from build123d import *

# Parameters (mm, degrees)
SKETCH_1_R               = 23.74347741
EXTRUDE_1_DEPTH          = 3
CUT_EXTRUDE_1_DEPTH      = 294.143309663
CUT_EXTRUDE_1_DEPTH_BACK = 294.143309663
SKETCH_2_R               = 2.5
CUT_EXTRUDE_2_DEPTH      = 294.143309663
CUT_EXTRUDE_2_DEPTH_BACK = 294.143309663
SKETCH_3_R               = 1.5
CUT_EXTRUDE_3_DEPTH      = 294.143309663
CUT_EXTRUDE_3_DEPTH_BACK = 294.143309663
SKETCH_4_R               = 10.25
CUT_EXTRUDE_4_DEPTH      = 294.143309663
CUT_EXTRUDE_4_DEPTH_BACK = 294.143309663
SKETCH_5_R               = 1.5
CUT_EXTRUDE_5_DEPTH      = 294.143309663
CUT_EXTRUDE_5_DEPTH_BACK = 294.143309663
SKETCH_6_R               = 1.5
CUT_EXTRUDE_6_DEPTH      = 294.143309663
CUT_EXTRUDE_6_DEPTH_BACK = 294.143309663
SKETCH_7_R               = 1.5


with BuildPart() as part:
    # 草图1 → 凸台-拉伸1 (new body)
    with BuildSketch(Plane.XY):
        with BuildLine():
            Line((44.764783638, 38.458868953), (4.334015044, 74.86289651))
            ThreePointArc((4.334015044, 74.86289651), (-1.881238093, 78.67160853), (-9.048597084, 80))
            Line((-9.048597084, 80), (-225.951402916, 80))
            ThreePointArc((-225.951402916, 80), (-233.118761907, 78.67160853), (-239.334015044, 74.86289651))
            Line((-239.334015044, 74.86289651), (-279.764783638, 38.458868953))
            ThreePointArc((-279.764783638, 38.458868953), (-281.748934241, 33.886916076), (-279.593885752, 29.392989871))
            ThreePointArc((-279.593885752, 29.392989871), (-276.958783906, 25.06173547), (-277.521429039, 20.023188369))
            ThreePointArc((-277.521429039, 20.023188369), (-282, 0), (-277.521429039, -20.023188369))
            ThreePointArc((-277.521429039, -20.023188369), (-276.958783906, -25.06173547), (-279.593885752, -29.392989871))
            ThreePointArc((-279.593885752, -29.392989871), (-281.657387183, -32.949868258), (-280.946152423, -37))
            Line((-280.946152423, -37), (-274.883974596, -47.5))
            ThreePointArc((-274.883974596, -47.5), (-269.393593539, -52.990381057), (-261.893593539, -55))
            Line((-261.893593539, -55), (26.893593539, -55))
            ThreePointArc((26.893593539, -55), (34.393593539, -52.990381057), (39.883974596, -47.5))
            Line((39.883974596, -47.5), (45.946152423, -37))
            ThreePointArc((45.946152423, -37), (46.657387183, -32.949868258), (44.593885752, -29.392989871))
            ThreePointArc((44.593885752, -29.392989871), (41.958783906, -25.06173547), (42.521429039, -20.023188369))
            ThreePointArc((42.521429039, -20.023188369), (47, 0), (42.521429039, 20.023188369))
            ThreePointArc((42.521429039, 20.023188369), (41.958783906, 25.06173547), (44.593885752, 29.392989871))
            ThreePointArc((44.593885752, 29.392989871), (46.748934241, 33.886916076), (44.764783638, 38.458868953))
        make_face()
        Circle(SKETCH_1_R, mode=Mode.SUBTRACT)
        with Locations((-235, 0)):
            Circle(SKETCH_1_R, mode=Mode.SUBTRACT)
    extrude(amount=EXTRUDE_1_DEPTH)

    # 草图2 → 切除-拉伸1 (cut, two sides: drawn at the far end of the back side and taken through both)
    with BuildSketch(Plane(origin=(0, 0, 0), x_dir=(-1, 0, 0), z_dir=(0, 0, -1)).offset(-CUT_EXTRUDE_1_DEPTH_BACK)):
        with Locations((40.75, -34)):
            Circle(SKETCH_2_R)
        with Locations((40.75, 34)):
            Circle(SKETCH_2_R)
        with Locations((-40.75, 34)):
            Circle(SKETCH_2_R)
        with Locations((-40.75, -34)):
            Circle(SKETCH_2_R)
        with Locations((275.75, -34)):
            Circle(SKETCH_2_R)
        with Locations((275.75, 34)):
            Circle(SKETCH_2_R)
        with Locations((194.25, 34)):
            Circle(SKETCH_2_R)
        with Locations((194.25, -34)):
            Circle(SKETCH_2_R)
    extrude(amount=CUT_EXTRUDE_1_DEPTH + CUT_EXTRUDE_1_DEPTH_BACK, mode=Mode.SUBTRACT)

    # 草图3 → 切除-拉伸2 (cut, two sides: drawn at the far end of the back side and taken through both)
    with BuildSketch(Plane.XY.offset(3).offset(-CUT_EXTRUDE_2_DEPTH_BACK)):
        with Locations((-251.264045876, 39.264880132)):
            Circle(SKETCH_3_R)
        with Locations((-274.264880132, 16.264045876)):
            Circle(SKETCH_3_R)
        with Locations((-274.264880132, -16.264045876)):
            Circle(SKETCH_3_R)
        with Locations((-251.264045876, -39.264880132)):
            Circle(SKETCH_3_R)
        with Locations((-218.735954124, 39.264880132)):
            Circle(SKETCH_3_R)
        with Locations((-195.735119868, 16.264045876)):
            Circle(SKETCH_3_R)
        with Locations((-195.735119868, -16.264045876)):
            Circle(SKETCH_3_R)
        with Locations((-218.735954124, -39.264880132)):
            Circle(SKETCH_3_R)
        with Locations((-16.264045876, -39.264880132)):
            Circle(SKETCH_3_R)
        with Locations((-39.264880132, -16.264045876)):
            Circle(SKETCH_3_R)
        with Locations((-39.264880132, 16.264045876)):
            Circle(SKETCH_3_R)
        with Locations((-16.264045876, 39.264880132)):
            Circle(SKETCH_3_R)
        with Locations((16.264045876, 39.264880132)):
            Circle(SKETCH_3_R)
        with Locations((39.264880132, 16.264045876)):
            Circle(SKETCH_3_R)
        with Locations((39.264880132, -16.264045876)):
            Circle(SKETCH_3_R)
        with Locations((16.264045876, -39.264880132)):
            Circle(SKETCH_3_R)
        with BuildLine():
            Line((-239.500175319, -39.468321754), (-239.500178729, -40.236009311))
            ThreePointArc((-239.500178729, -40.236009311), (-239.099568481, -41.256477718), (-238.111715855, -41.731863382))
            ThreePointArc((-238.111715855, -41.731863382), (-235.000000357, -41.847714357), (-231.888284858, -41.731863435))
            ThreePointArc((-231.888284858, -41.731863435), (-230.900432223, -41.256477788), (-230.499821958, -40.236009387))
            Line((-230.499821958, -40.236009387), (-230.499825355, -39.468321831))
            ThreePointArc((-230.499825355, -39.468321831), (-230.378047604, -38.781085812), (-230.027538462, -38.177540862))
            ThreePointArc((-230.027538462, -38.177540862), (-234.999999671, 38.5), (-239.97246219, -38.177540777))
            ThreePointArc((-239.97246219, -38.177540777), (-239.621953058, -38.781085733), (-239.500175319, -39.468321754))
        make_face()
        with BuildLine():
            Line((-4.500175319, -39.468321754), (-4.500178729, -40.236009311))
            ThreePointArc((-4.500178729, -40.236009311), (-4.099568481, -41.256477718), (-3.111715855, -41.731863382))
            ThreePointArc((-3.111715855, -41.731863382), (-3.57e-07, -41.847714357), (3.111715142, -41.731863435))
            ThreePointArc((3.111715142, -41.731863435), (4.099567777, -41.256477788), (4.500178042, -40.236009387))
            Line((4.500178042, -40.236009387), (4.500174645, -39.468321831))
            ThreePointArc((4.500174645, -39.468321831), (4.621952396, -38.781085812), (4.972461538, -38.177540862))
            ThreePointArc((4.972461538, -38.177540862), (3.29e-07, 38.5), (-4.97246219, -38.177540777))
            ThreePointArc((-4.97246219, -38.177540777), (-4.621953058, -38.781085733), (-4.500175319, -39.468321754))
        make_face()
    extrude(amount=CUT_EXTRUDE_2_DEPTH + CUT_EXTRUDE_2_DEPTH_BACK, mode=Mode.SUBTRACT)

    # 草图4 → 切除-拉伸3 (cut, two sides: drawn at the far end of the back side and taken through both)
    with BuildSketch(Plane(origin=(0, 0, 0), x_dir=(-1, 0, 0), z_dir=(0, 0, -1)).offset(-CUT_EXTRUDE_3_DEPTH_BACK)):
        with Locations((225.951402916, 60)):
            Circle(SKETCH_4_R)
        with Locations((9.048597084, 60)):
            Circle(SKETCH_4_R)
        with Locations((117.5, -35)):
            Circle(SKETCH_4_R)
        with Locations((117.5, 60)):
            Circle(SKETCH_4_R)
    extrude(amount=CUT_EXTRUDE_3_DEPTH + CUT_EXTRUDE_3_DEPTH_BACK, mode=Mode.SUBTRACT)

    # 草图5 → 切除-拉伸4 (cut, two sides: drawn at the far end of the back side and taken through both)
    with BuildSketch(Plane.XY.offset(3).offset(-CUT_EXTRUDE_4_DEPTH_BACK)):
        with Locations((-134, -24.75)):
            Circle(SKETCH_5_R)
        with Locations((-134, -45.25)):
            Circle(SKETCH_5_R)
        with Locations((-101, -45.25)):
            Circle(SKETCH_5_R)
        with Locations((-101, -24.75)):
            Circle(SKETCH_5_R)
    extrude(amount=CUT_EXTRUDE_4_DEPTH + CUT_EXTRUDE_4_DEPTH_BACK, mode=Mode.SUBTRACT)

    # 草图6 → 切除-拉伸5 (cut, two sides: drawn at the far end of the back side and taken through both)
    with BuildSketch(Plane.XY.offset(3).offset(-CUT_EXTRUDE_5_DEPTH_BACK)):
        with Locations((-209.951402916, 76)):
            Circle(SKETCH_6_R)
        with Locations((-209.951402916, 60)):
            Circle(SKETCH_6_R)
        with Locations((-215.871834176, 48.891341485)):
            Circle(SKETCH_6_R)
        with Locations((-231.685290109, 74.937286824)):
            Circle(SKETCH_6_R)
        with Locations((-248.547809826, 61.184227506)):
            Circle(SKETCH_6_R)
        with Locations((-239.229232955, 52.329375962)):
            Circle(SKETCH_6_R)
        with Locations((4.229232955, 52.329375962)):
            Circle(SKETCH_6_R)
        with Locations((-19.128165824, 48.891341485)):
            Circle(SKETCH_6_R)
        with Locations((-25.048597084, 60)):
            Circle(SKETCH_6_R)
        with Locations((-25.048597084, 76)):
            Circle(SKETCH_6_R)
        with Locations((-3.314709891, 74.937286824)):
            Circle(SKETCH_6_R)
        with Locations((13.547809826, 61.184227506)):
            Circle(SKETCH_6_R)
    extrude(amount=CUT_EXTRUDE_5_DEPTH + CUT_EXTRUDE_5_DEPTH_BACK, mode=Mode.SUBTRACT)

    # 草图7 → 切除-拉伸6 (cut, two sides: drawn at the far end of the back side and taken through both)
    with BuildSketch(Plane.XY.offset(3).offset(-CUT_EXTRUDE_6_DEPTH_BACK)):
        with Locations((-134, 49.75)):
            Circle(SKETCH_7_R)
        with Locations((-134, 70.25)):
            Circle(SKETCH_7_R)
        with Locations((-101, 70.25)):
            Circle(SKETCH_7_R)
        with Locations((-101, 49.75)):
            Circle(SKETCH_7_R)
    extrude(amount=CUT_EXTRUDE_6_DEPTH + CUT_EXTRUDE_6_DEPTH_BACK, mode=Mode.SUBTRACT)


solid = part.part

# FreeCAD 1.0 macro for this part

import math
import FreeCAD as App
import Part
import Sketcher
from FreeCAD import Vector
Q = App.Units.Quantity

doc = App.newDocument("Part")
body = doc.addObject("PartDesign::Body", "Body")

sketch1 = doc.addObject("Sketcher::SketchObject", "Sketch")
body.addObject(sketch1)
sketch1.AttachmentSupport = (doc.XY_Plane, [""])
sketch1.MapMode = "FlatFace"
sketch1.addGeometry([
    Part.LineSegment(Vector(44.764784, 38.458869, 0), Vector(4.334015, 74.862897, 0)),
    Part.ArcOfCircle(Part.Circle(Vector(-9.048597, 60, 0), Vector(0, 0, 1), 20), math.radians(48), math.radians(90)),
    Part.LineSegment(Vector(-9.048597, 80, 0), Vector(-225.951403, 80, 0)),
    Part.ArcOfCircle(Part.Circle(Vector(-225.951403, 60, 0), Vector(0, 0, 1), 20), math.radians(90), math.radians(132)),
    Part.LineSegment(Vector(-239.334015, 74.862897, 0), Vector(-279.764784, 38.458869, 0)),
    Part.ArcOfCircle(Part.Circle(Vector(-275.75, 34, 0), Vector(0, 0, 1), 6), math.radians(132), math.radians(230.159872)),
    Part.ArcOfCircle(Part.Circle(Vector(-284.621895, 23.366772, 0), Vector(0, 0, 1), 7.848323), math.radians(-25.215578), math.radians(50.159872)),
    Part.ArcOfCircle(Part.Circle(Vector(-235, 0, 0), Vector(0, 0, 1), 47), math.radians(154.784422), math.radians(205.215578)),
    Part.ArcOfCircle(Part.Circle(Vector(-284.621895, -23.366772, 0), Vector(0, 0, 1), 7.848323), math.radians(-50.159872), math.radians(25.215578)),
    Part.ArcOfCircle(Part.Circle(Vector(-275.75, -34, 0), Vector(0, 0, 1), 6), math.radians(129.840128), math.radians(210)),
    Part.LineSegment(Vector(-280.946152, -37, 0), Vector(-274.883975, -47.5, 0)),
    Part.ArcOfCircle(Part.Circle(Vector(-261.893594, -40, 0), Vector(0, 0, 1), 15), math.radians(-150), math.radians(-90)),
    Part.LineSegment(Vector(-261.893594, -55, 0), Vector(26.893594, -55, 0)),
    Part.ArcOfCircle(Part.Circle(Vector(26.893594, -40, 0), Vector(0, 0, 1), 15), math.radians(-90), math.radians(-30)),
    Part.LineSegment(Vector(39.883975, -47.5, 0), Vector(45.946152, -37, 0)),
    Part.ArcOfCircle(Part.Circle(Vector(40.75, -34, 0), Vector(0, 0, 1), 6), math.radians(-30), math.radians(50.159872)),
    Part.ArcOfCircle(Part.Circle(Vector(49.621895, -23.366772, 0), Vector(0, 0, 1), 7.848323), math.radians(154.784422), math.radians(230.159872)),
    Part.ArcOfCircle(Part.Circle(Vector(0, 0, 0), Vector(0, 0, 1), 47), math.radians(-25.215578), math.radians(25.215578)),
    Part.ArcOfCircle(Part.Circle(Vector(49.621895, 23.366772, 0), Vector(0, 0, 1), 7.848323), math.radians(129.840128), math.radians(205.215578)),
    Part.ArcOfCircle(Part.Circle(Vector(40.75, 34, 0), Vector(0, 0, 1), 6), math.radians(-50.159872), math.radians(48)),
    Part.Circle(Vector(-235, 0, 0), Vector(0, 0, 1), 23.743477),
    Part.Circle(Vector(0, 0, 0), Vector(0, 0, 1), 23.743477),
], False)
sketch1.addConstraint([
    Sketcher.Constraint("Tangent", 0, 2, 1, 1),
    Sketcher.Constraint("Tangent", 1, 2, 2, 1),
    Sketcher.Constraint("Tangent", 2, 2, 3, 1),
    Sketcher.Constraint("Tangent", 3, 2, 4, 1),
    Sketcher.Constraint("Tangent", 4, 2, 5, 1),
    Sketcher.Constraint("Tangent", 5, 2, 6, 2),
    Sketcher.Constraint("Tangent", 6, 1, 7, 1),
    Sketcher.Constraint("Tangent", 7, 2, 8, 2),
    Sketcher.Constraint("Tangent", 8, 1, 9, 1),
    Sketcher.Constraint("Tangent", 9, 2, 10, 1),
    Sketcher.Constraint("Tangent", 10, 2, 11, 1),
    Sketcher.Constraint("Tangent", 11, 2, 12, 1),
    Sketcher.Constraint("Tangent", 12, 2, 13, 1),
    Sketcher.Constraint("Tangent", 13, 2, 14, 1),
    Sketcher.Constraint("Tangent", 14, 2, 15, 1),
    Sketcher.Constraint("Tangent", 15, 2, 16, 2),
    Sketcher.Constraint("Tangent", 16, 1, 17, 1),
    Sketcher.Constraint("Tangent", 17, 2, 18, 2),
    Sketcher.Constraint("Tangent", 18, 1, 19, 1),
    Sketcher.Constraint("Tangent", 19, 2, 0, 1),
    Sketcher.Constraint("Horizontal", 2),
    Sketcher.Constraint("Horizontal", 12),
    Sketcher.Constraint("Coincident", 17, 3, -1, 1),
    Sketcher.Constraint("Coincident", 21, 3, -1, 1),
    Sketcher.Constraint("Coincident", 20, 3, 7, 3),
    Sketcher.Constraint("Equal", 1, 3),
    Sketcher.Constraint("Equal", 6, 8),
    Sketcher.Constraint("Equal", 5, 9),
    Sketcher.Constraint("Equal", 11, 13),
    Sketcher.Constraint("Equal", 9, 15),
    Sketcher.Constraint("Equal", 8, 16),
    Sketcher.Constraint("Equal", 7, 17),
    Sketcher.Constraint("Equal", 16, 18),
    Sketcher.Constraint("Equal", 15, 19),
    Sketcher.Constraint("Equal", 20, 21),
    Sketcher.Constraint("Symmetric", 6, 3, 8, 3, -1),
    Sketcher.Constraint("Symmetric", 15, 3, 19, 3, -1),
    Sketcher.Constraint("Horizontal", 9, 3, 15, 3),
    Sketcher.Constraint("Horizontal", 8, 3, 16, 3),
    Sketcher.Constraint("Horizontal", 5, 3, 19, 3),
    Sketcher.Constraint("Horizontal", 0, 2, 3, 2),
    Sketcher.Constraint("Horizontal", 10, 2, 13, 2),
    Sketcher.Constraint("Radius", 1, 20.0),
    Sketcher.Constraint("Radius", 5, 6.0),
    Sketcher.Constraint("Radius", 7, 47.0),
    Sketcher.Constraint("Radius", 11, 15.0),
    Sketcher.Constraint("Angle", 0, Q("138 deg")),
    Sketcher.Constraint("Angle", 10, Q("-60 deg")),
    Sketcher.Constraint("DistanceY", -1, 1, 1, 3, 60.0),
    Sketcher.Constraint("DistanceY", -1, 1, 5, 3, 34.0),
    Sketcher.Constraint("DistanceX", 7, 3, -1, 1, 235.0),
    Sketcher.Constraint("DistanceY", 11, 3, -1, 1, 40.0),
    Sketcher.Constraint("DistanceX", 5, 3, -1, 1, 275.75),
    Sketcher.Constraint("Diameter", 20, 47.486955),
    Sketcher.Constraint("Radius", 6, 7.848323),
])
pad1 = doc.addObject("PartDesign::Pad", "Pad")
body.addObject(pad1)
pad1.Profile = sketch1
pad1.Length = 3

sketch2 = doc.addObject("Sketcher::SketchObject", "Sketch001")
body.addObject(sketch2)
sketch2.AttachmentSupport = (doc.XY_Plane, [""])
sketch2.MapMode = "FlatFace"
sketch2.addGeometry([
    Part.Circle(Vector(-40.75, -34, 0), Vector(0, 0, 1), 2.5),
    Part.Circle(Vector(-40.75, 34, 0), Vector(0, 0, 1), 2.5),
    Part.Circle(Vector(40.75, 34, 0), Vector(0, 0, 1), 2.5),
    Part.Circle(Vector(40.75, -34, 0), Vector(0, 0, 1), 2.5),
    Part.Circle(Vector(-275.75, -34, 0), Vector(0, 0, 1), 2.5),
    Part.Circle(Vector(-275.75, 34, 0), Vector(0, 0, 1), 2.5),
    Part.Circle(Vector(-194.25, 34, 0), Vector(0, 0, 1), 2.5),
    Part.Circle(Vector(-194.25, -34, 0), Vector(0, 0, 1), 2.5),
], False)
sketch2.addConstraint([
    Sketcher.Constraint("Equal", 0, 1),
    Sketcher.Constraint("Equal", 1, 2),
    Sketcher.Constraint("Equal", 2, 3),
    Sketcher.Constraint("Equal", 3, 4),
    Sketcher.Constraint("Equal", 4, 5),
    Sketcher.Constraint("Equal", 5, 6),
    Sketcher.Constraint("Equal", 6, 7),
    Sketcher.Constraint("Symmetric", 0, 3, 2, 3, -1, 1),
    Sketcher.Constraint("Symmetric", 1, 3, 3, 3, -1, 1),
    Sketcher.Constraint("Symmetric", 1, 3, 2, 3, -2),
    Sketcher.Constraint("Symmetric", 4, 3, 5, 3, -1),
    Sketcher.Constraint("Symmetric", 6, 3, 7, 3, -1),
    Sketcher.Constraint("Horizontal", 3, 3, 4, 3),
    Sketcher.Constraint("Horizontal", 5, 3, 6, 3),
    Sketcher.Constraint("Diameter", 0, 5.0),
    Sketcher.Constraint("DistanceY", 0, 3, -1, 1, 34.0),
    Sketcher.Constraint("DistanceX", 4, 3, 0, 3, 235.0),
    Sketcher.Constraint("DistanceX", 6, 3, 2, 3, 235.0),
    Sketcher.Constraint("DistanceX", 1, 3, 2, 3, 81.5),
])
pocket1 = doc.addObject("PartDesign::Pocket", "Pocket")
body.addObject(pocket1)
pocket1.Profile = sketch2
pocket1.Type = "ThroughAll"
pocket1.Midplane = True

sketch3 = doc.addObject("Sketcher::SketchObject", "Sketch002")
body.addObject(sketch3)
sketch3.AttachmentSupport = (doc.XY_Plane, [""])
sketch3.MapMode = "FlatFace"
sketch3.AttachmentOffset = App.Placement(Vector(0, 0, 3), App.Rotation())
sketch3.addGeometry([
    Part.Circle(Vector(-251.264046, 39.26488, 0), Vector(0, 0, 1), 1.5),
    Part.Circle(Vector(-274.26488, 16.264046, 0), Vector(0, 0, 1), 1.5),
    Part.Circle(Vector(-274.26488, -16.264046, 0), Vector(0, 0, 1), 1.5),
    Part.Circle(Vector(-251.264046, -39.26488, 0), Vector(0, 0, 1), 1.5),
    Part.Circle(Vector(-218.735954, 39.26488, 0), Vector(0, 0, 1), 1.5),
    Part.Circle(Vector(-195.73512, 16.264046, 0), Vector(0, 0, 1), 1.5),
    Part.Circle(Vector(-195.73512, -16.264046, 0), Vector(0, 0, 1), 1.5),
    Part.Circle(Vector(-218.735954, -39.26488, 0), Vector(0, 0, 1), 1.5),
    Part.Circle(Vector(-16.264046, -39.26488, 0), Vector(0, 0, 1), 1.5),
    Part.Circle(Vector(-39.26488, -16.264046, 0), Vector(0, 0, 1), 1.5),
    Part.Circle(Vector(-39.26488, 16.264046, 0), Vector(0, 0, 1), 1.5),
    Part.Circle(Vector(-16.264046, 39.26488, 0), Vector(0, 0, 1), 1.5),
    Part.Circle(Vector(16.264046, 39.26488, 0), Vector(0, 0, 1), 1.5),
    Part.Circle(Vector(39.26488, 16.264046, 0), Vector(0, 0, 1), 1.5),
    Part.Circle(Vector(39.26488, -16.264046, 0), Vector(0, 0, 1), 1.5),
    Part.Circle(Vector(16.264046, -39.26488, 0), Vector(0, 0, 1), 1.5),
    Part.LineSegment(Vector(-239.500175, -39.468322, 0), Vector(-239.500179, -40.236009, 0)),
    Part.ArcOfCircle(Part.Circle(Vector(-238.000179, -40.236016, 0), Vector(0, 0, 1), 1.5), math.radians(179.999746), math.radians(265.73566)),
    Part.ArcOfCircle(Part.Circle(Vector(-235, 0, 0), Vector(0, 0, 1), 41.847714), math.radians(-94.26434), math.radians(-85.735661)),
    Part.ArcOfCircle(Part.Circle(Vector(-231.999822, -40.236016, 0), Vector(0, 0, 1), 1.5), math.radians(-85.735661), math.radians(0.000254)),
    Part.LineSegment(Vector(-230.499822, -40.236009, 0), Vector(-230.499825, -39.468322, 0)),
    Part.ArcOfCircle(Part.Circle(Vector(-228.499825, -39.468313, 0), Vector(0, 0, 1), 2), math.radians(139.805373), math.radians(180.000253)),
    Part.ArcOfCircle(Part.Circle(Vector(-235, 0, 0), Vector(0, 0, 1), 38.5), math.radians(-82.579243), math.radians(262.579242)),
    Part.ArcOfCircle(Part.Circle(Vector(-241.500175, -39.468313, 0), Vector(0, 0, 1), 2), math.radians(-0.000254), math.radians(40.194626)),
    Part.LineSegment(Vector(-4.500175, -39.468322, 0), Vector(-4.500179, -40.236009, 0)),
    Part.ArcOfCircle(Part.Circle(Vector(-3.000179, -40.236016, 0), Vector(0, 0, 1), 1.5), math.radians(179.999746), math.radians(265.73566)),
    Part.ArcOfCircle(Part.Circle(Vector(0, 0, 0), Vector(0, 0, 1), 41.847714), math.radians(-94.26434), math.radians(-85.735661)),
    Part.ArcOfCircle(Part.Circle(Vector(3.000178, -40.236016, 0), Vector(0, 0, 1), 1.5), math.radians(-85.735661), math.radians(0.000254)),
    Part.LineSegment(Vector(4.500178, -40.236009, 0), Vector(4.500175, -39.468322, 0)),
    Part.ArcOfCircle(Part.Circle(Vector(6.500175, -39.468313, 0), Vector(0, 0, 1), 2), math.radians(139.805373), math.radians(180.000253)),
    Part.ArcOfCircle(Part.Circle(Vector(0, 0, 0), Vector(0, 0, 1), 38.5), math.radians(-82.579243), math.radians(262.579242)),
    Part.ArcOfCircle(Part.Circle(Vector(-6.500175, -39.468313, 0), Vector(0, 0, 1), 2), math.radians(-0.000254), math.radians(40.194626)),
], False)
sketch3.addConstraint([
    Sketcher.Constraint("Tangent", 16, 2, 17, 1),
    Sketcher.Constraint("Tangent", 17, 2, 18, 1),
    Sketcher.Constraint("Tangent", 18, 2, 19, 1),
    Sketcher.Constraint("Tangent", 19, 2, 20, 1),
    Sketcher.Constraint("Tangent", 20, 2, 21, 2),
    Sketcher.Constraint("Coincident", 21, 1, 22, 1),
    Sketcher.Constraint("Coincident", 22, 2, 23, 2),
    Sketcher.Constraint("Tangent", 23, 1, 16, 1),
    Sketcher.Constraint("Tangent", 24, 2, 25, 1),
    Sketcher.Constraint("Tangent", 25, 2, 26, 1),
    Sketcher.Constraint("Tangent", 26, 2, 27, 1),
    Sketcher.Constraint("Tangent", 27, 2, 28, 1),
    Sketcher.Constraint("Tangent", 28, 2, 29, 2),
    Sketcher.Constraint("Coincident", 29, 1, 30, 1),
    Sketcher.Constraint("Coincident", 30, 2, 31, 2),
    Sketcher.Constraint("Tangent", 31, 1, 24, 1),
    Sketcher.Constraint("Coincident", 26, 3, -1, 1),
    Sketcher.Constraint("Coincident", 30, 3, -1, 1),
    Sketcher.Constraint("Coincident", 22, 3, 18, 3),
    Sketcher.Constraint("Equal", 0, 1),
    Sketcher.Constraint("Equal", 1, 2),
    Sketcher.Constraint("Equal", 2, 3),
    Sketcher.Constraint("Equal", 3, 4),
    Sketcher.Constraint("Equal", 4, 5),
    Sketcher.Constraint("Equal", 5, 6),
    Sketcher.Constraint("Equal", 6, 7),
    Sketcher.Constraint("Equal", 7, 8),
    Sketcher.Constraint("Equal", 8, 9),
    Sketcher.Constraint("Equal", 9, 10),
    Sketcher.Constraint("Equal", 10, 11),
    Sketcher.Constraint("Equal", 11, 12),
    Sketcher.Constraint("Equal", 12, 13),
    Sketcher.Constraint("Equal", 13, 14),
    Sketcher.Constraint("Equal", 14, 15),
    Sketcher.Constraint("Equal", 15, 17),
    Sketcher.Constraint("Equal", 17, 19),
    Sketcher.Constraint("Equal", 21, 23),
    Sketcher.Constraint("Equal", 19, 25),
    Sketcher.Constraint("Equal", 18, 26),
    Sketcher.Constraint("Equal", 25, 27),
    Sketcher.Constraint("Equal", 23, 29),
    Sketcher.Constraint("Equal", 22, 30),
    Sketcher.Constraint("Equal", 29, 31),
    Sketcher.Constraint("Symmetric", 8, 3, 12, 3, -1, 1),
    Sketcher.Constraint("Symmetric", 9, 3, 13, 3, -1, 1),
    Sketcher.Constraint("Symmetric", 10, 3, 14, 3, -1, 1),
    Sketcher.Constraint("Symmetric", 11, 3, 15, 3, -1, 1),
    Sketcher.Constraint("Symmetric", 11, 3, 12, 3, -2),
    Sketcher.Constraint("Symmetric", 10, 3, 13, 3, -2),
    Sketcher.Constraint("Symmetric", 29, 3, 31, 3, -2),
    Sketcher.Constraint("Symmetric", 1, 3, 2, 3, -1),
    Sketcher.Constraint("Symmetric", 0, 3, 3, 3, -1),
    Sketcher.Constraint("Symmetric", 5, 3, 6, 3, -1),
    Sketcher.Constraint("Symmetric", 4, 3, 7, 3, -1),
    Sketcher.Constraint("PointOnObject", 18, 3, -1),
    Sketcher.Constraint("Parallel", 16, 24),
    Sketcher.Constraint("Parallel", 20, 28),
    Sketcher.Constraint("Horizontal", 0, 3, 4, 3),
    Sketcher.Constraint("Horizontal", 1, 3, 5, 3),
    Sketcher.Constraint("Horizontal", 7, 3, 8, 3),
    Sketcher.Constraint("Horizontal", 6, 3, 9, 3),
    Sketcher.Constraint("Horizontal", 17, 3, 19, 3),
    Sketcher.Constraint("Horizontal", 21, 3, 23, 3),
    Sketcher.Constraint("Horizontal", 19, 3, 25, 3),
    Sketcher.Constraint("Horizontal", 25, 3, 27, 3),
    Sketcher.Constraint("Horizontal", 23, 3, 29, 3),
    Sketcher.Constraint("Diameter", 0, 3.0),
    Sketcher.Constraint("Radius", 21, 2.0),
    Sketcher.Constraint("Radius", 22, 38.5),
    Sketcher.Constraint("DistanceX", 18, 3, -1, 1, 235.0),
    Sketcher.Constraint("DistanceX", 3, 3, 8, 3, 235.0),
    Sketcher.Constraint("Radius", 18, 41.847714),
    Sketcher.Constraint("DistanceX", 2, 3, 17, 3, 36.264701),
    Sketcher.Constraint("DistanceX", 9, 3, 25, 3, 36.264701),
    Sketcher.Constraint("DistanceY", -1, 1, 0, 3, 39.26488),
    Sketcher.Constraint("DistanceX", 1, 3, -1, 1, 274.26488),
    Sketcher.Constraint("DistanceX", 5, 3, -1, 1, 195.73512),
    Sketcher.Constraint("DistanceY", 16, 2, -1, 1, 40.236009),
    Sketcher.Constraint("DistanceY", 20, 2, -1, 1, 39.468322),
    Sketcher.Constraint("DistanceY", 2, 3, 1, 3, 32.528092),
    Sketcher.Constraint("DistanceX", 0, 3, 4, 3, 32.528092),
    Sketcher.Constraint("DistanceX", 11, 3, 12, 3, 32.528092),
])
pocket2 = doc.addObject("PartDesign::Pocket", "Pocket001")
body.addObject(pocket2)
pocket2.Profile = sketch3
pocket2.Type = "ThroughAll"
pocket2.Midplane = True

sketch4 = doc.addObject("Sketcher::SketchObject", "Sketch003")
body.addObject(sketch4)
sketch4.AttachmentSupport = (doc.XY_Plane, [""])
sketch4.MapMode = "FlatFace"
sketch4.addGeometry([
    Part.Circle(Vector(-225.951403, 60, 0), Vector(0, 0, 1), 10.25),
    Part.Circle(Vector(-9.048597, 60, 0), Vector(0, 0, 1), 10.25),
    Part.Circle(Vector(-117.5, -35, 0), Vector(0, 0, 1), 10.25),
    Part.Circle(Vector(-117.5, 60, 0), Vector(0, 0, 1), 10.25),
], False)
sketch4.addConstraint([
    Sketcher.Constraint("Equal", 0, 1),
    Sketcher.Constraint("Equal", 1, 2),
    Sketcher.Constraint("Equal", 2, 3),
    Sketcher.Constraint("Horizontal", 0, 3, 1, 3),
    Sketcher.Constraint("Horizontal", 1, 3, 3, 3),
    Sketcher.Constraint("Vertical", 2, 3, 3, 3),
    Sketcher.Constraint("Diameter", 0, 20.5),
    Sketcher.Constraint("DistanceY", -1, 1, 0, 3, 60.0),
    Sketcher.Constraint("DistanceY", 2, 3, -1, 1, 35.0),
    Sketcher.Constraint("DistanceX", 2, 3, -1, 1, 117.5),
    Sketcher.Constraint("DistanceX", 0, 3, -1, 1, 225.951403),
    Sketcher.Constraint("DistanceX", 1, 3, -1, 1, 9.048597),
])
pocket3 = doc.addObject("PartDesign::Pocket", "Pocket002")
body.addObject(pocket3)
pocket3.Profile = sketch4
pocket3.Type = "ThroughAll"
pocket3.Midplane = True

sketch5 = doc.addObject("Sketcher::SketchObject", "Sketch004")
body.addObject(sketch5)
sketch5.AttachmentSupport = (doc.XY_Plane, [""])
sketch5.MapMode = "FlatFace"
sketch5.AttachmentOffset = App.Placement(Vector(0, 0, 3), App.Rotation())
sketch5.addGeometry([
    Part.Circle(Vector(-134, -24.75, 0), Vector(0, 0, 1), 1.5),
    Part.Circle(Vector(-134, -45.25, 0), Vector(0, 0, 1), 1.5),
    Part.Circle(Vector(-101, -45.25, 0), Vector(0, 0, 1), 1.5),
    Part.Circle(Vector(-101, -24.75, 0), Vector(0, 0, 1), 1.5),
], False)
sketch5.addConstraint([
    Sketcher.Constraint("Equal", 0, 1),
    Sketcher.Constraint("Equal", 1, 2),
    Sketcher.Constraint("Equal", 2, 3),
    Sketcher.Constraint("Horizontal", 1, 3, 2, 3),
    Sketcher.Constraint("Horizontal", 0, 3, 3, 3),
    Sketcher.Constraint("Vertical", 0, 3, 1, 3),
    Sketcher.Constraint("Vertical", 2, 3, 3, 3),
    Sketcher.Constraint("Diameter", 0, 3.0),
    Sketcher.Constraint("DistanceX", 0, 3, -1, 1, 134.0),
    Sketcher.Constraint("DistanceX", 2, 3, -1, 1, 101.0),
    Sketcher.Constraint("DistanceY", 1, 3, 0, 3, 20.5),
    Sketcher.Constraint("DistanceY", 0, 3, -1, 1, 24.75),
])
pocket4 = doc.addObject("PartDesign::Pocket", "Pocket003")
body.addObject(pocket4)
pocket4.Profile = sketch5
pocket4.Type = "ThroughAll"
pocket4.Midplane = True

sketch6 = doc.addObject("Sketcher::SketchObject", "Sketch005")
body.addObject(sketch6)
sketch6.AttachmentSupport = (doc.XY_Plane, [""])
sketch6.MapMode = "FlatFace"
sketch6.AttachmentOffset = App.Placement(Vector(0, 0, 3), App.Rotation())
sketch6.addGeometry([
    Part.Circle(Vector(-209.951403, 76, 0), Vector(0, 0, 1), 1.5),
    Part.Circle(Vector(-209.951403, 60, 0), Vector(0, 0, 1), 1.5),
    Part.Circle(Vector(-215.871834, 48.891341, 0), Vector(0, 0, 1), 1.5),
    Part.Circle(Vector(-231.68529, 74.937287, 0), Vector(0, 0, 1), 1.5),
    Part.Circle(Vector(-248.54781, 61.184228, 0), Vector(0, 0, 1), 1.5),
    Part.Circle(Vector(-239.229233, 52.329376, 0), Vector(0, 0, 1), 1.5),
    Part.Circle(Vector(4.229233, 52.329376, 0), Vector(0, 0, 1), 1.5),
    Part.Circle(Vector(-19.128166, 48.891341, 0), Vector(0, 0, 1), 1.5),
    Part.Circle(Vector(-25.048597, 60, 0), Vector(0, 0, 1), 1.5),
    Part.Circle(Vector(-25.048597, 76, 0), Vector(0, 0, 1), 1.5),
    Part.Circle(Vector(-3.31471, 74.937287, 0), Vector(0, 0, 1), 1.5),
    Part.Circle(Vector(13.54781, 61.184228, 0), Vector(0, 0, 1), 1.5),
], False)
sketch6.addConstraint([
    Sketcher.Constraint("Equal", 0, 1),
    Sketcher.Constraint("Equal", 1, 2),
    Sketcher.Constraint("Equal", 2, 3),
    Sketcher.Constraint("Equal", 3, 4),
    Sketcher.Constraint("Equal", 4, 5),
    Sketcher.Constraint("Equal", 5, 6),
    Sketcher.Constraint("Equal", 6, 7),
    Sketcher.Constraint("Equal", 7, 8),
    Sketcher.Constraint("Equal", 8, 9),
    Sketcher.Constraint("Equal", 9, 10),
    Sketcher.Constraint("Equal", 10, 11),
    Sketcher.Constraint("Horizontal", 5, 3, 6, 3),
    Sketcher.Constraint("Horizontal", 2, 3, 7, 3),
    Sketcher.Constraint("Horizontal", 1, 3, 8, 3),
    Sketcher.Constraint("Horizontal", 0, 3, 9, 3),
    Sketcher.Constraint("Horizontal", 3, 3, 10, 3),
    Sketcher.Constraint("Horizontal", 4, 3, 11, 3),
    Sketcher.Constraint("Vertical", 0, 3, 1, 3),
    Sketcher.Constraint("Vertical", 8, 3, 9, 3),
    Sketcher.Constraint("Diameter", 0, 3.0),
    Sketcher.Constraint("DistanceY", -1, 1, 0, 3, 76.0),
    Sketcher.Constraint("DistanceY", -1, 1, 1, 3, 60.0),
    Sketcher.Constraint("DistanceX", 5, 3, 2, 3, 23.357399),
    Sketcher.Constraint("DistanceX", 7, 3, 6, 3, 23.357399),
    Sketcher.Constraint("DistanceY", -1, 1, 2, 3, 48.891341),
    Sketcher.Constraint("DistanceX", 3, 3, -1, 1, 231.68529),
    Sketcher.Constraint("DistanceX", 4, 3, -1, 1, 248.54781),
    Sketcher.Constraint("DistanceX", 10, 3, -1, 1, 3.31471),
    Sketcher.Constraint("DistanceX", -1, 1, 11, 3, 13.54781),
    Sketcher.Constraint("DistanceX", 2, 3, 1, 3, 5.920431),
    Sketcher.Constraint("DistanceY", 4, 3, 3, 3, 13.753059),
    Sketcher.Constraint("DistanceY", 5, 3, 4, 3, 8.854852),
    Sketcher.Constraint("DistanceX", 2, 3, 7, 3, 196.743668),
    Sketcher.Constraint("DistanceX", 8, 3, 7, 3, 5.920431),
    Sketcher.Constraint("DistanceX", 0, 3, -1, 1, 209.951403),
    Sketcher.Constraint("DistanceY", -1, 1, 3, 3, 74.937287),
])
pocket5 = doc.addObject("PartDesign::Pocket", "Pocket004")
body.addObject(pocket5)
pocket5.Profile = sketch6
pocket5.Type = "ThroughAll"
pocket5.Midplane = True

sketch7 = doc.addObject("Sketcher::SketchObject", "Sketch006")
body.addObject(sketch7)
sketch7.AttachmentSupport = (doc.XY_Plane, [""])
sketch7.MapMode = "FlatFace"
sketch7.AttachmentOffset = App.Placement(Vector(0, 0, 3), App.Rotation())
sketch7.addGeometry([
    Part.Circle(Vector(-134, 49.75, 0), Vector(0, 0, 1), 1.5),
    Part.Circle(Vector(-134, 70.25, 0), Vector(0, 0, 1), 1.5),
    Part.Circle(Vector(-101, 70.25, 0), Vector(0, 0, 1), 1.5),
    Part.Circle(Vector(-101, 49.75, 0), Vector(0, 0, 1), 1.5),
], False)
sketch7.addConstraint([
    Sketcher.Constraint("Equal", 0, 1),
    Sketcher.Constraint("Equal", 1, 2),
    Sketcher.Constraint("Equal", 2, 3),
    Sketcher.Constraint("Horizontal", 1, 3, 2, 3),
    Sketcher.Constraint("Horizontal", 0, 3, 3, 3),
    Sketcher.Constraint("Vertical", 0, 3, 1, 3),
    Sketcher.Constraint("Vertical", 2, 3, 3, 3),
    Sketcher.Constraint("Diameter", 0, 3.0),
    Sketcher.Constraint("DistanceX", 0, 3, -1, 1, 134.0),
    Sketcher.Constraint("DistanceX", 2, 3, -1, 1, 101.0),
    Sketcher.Constraint("DistanceY", 0, 3, 1, 3, 20.5),
    Sketcher.Constraint("DistanceY", -1, 1, 0, 3, 49.75),
])
pocket6 = doc.addObject("PartDesign::Pocket", "Pocket005")
body.addObject(pocket6)
pocket6.Profile = sketch7
pocket6.Type = "ThroughAll"
pocket6.Midplane = True

doc.recompute()
